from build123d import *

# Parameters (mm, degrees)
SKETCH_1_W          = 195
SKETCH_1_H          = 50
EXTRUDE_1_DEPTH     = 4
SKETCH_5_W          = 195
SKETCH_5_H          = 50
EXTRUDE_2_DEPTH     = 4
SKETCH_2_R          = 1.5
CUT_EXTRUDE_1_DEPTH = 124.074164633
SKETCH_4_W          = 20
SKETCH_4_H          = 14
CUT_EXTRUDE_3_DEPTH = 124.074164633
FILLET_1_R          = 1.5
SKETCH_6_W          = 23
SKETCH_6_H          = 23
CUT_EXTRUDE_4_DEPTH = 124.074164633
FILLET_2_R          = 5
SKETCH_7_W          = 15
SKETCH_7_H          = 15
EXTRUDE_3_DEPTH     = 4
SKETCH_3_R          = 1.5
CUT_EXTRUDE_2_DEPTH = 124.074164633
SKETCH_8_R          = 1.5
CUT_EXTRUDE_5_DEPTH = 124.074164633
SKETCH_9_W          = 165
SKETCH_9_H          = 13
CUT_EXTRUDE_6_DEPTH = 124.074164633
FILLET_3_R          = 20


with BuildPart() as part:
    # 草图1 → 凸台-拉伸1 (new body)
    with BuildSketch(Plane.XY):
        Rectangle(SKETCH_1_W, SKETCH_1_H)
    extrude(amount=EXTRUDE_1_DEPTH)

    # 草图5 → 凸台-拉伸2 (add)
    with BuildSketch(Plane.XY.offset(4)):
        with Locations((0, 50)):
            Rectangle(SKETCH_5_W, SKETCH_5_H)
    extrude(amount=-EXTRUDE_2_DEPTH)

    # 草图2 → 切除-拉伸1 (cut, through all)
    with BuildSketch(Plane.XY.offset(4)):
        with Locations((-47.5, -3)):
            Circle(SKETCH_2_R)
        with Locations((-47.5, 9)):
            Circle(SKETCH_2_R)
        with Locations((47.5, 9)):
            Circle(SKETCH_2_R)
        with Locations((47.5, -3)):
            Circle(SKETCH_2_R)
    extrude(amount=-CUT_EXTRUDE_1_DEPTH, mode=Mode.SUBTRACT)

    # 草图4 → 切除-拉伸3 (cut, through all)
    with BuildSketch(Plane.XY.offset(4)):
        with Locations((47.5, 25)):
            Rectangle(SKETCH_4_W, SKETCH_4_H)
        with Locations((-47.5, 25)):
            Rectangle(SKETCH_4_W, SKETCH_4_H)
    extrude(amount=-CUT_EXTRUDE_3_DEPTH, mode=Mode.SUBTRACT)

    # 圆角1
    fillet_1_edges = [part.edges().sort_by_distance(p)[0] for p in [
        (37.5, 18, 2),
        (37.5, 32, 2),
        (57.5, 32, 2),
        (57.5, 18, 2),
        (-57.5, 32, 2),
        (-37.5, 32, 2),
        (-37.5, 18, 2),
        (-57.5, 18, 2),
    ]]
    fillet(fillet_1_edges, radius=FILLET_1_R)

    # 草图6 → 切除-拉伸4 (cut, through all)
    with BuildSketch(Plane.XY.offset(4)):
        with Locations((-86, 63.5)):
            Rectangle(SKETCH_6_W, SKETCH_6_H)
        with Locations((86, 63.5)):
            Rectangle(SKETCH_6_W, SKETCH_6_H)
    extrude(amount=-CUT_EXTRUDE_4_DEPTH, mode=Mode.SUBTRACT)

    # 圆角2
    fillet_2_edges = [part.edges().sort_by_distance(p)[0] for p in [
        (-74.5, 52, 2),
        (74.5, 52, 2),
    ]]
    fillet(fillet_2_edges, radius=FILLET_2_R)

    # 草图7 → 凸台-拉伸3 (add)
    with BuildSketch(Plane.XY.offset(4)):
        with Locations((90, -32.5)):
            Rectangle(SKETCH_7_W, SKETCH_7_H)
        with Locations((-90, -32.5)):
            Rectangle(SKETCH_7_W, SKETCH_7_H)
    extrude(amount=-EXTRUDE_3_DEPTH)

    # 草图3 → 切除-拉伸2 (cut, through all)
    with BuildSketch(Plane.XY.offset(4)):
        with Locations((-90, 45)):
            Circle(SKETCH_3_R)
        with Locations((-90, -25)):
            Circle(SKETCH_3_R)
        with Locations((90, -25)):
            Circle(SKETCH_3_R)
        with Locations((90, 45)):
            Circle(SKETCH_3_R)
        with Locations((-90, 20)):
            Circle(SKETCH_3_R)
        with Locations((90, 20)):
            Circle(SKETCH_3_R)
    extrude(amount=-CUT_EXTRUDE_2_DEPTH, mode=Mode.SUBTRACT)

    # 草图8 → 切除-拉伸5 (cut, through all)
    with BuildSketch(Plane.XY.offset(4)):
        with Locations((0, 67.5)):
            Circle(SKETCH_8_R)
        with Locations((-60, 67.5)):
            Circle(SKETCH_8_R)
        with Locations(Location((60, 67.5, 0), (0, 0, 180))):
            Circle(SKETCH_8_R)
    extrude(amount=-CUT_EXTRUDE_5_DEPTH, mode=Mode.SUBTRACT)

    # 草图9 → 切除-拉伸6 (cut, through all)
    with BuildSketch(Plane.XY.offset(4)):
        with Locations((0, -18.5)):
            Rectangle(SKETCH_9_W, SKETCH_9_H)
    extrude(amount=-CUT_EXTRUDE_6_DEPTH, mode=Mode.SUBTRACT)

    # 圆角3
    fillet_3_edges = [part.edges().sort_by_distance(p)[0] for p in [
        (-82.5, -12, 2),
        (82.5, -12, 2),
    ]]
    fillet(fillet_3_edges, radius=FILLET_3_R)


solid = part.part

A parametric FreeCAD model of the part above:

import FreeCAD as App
import Part
import Sketcher
from FreeCAD import Vector


def edges_at(feature, points):
    """Names of the edges that pass closest to the given points."""
    edges = feature.Shape.Edges
    near = lambda p: min(range(len(edges)), key=lambda i: edges[i].distToShape(Part.Vertex(*p))[0])
    return sorted({f"Edge{near(p) + 1}" for p in points})

doc = App.newDocument("Part")
body = doc.addObject("PartDesign::Body", "Body")

# Sketch on XY plane
sketch1 = body.newObject("Sketcher::SketchObject", "Sketch")
sketch1.AttachmentSupport = (doc.getObject("XY_Plane"), [""])
sketch1.MapMode = "FlatFace"
sketch1.addGeometry(Part.LineSegment(Vector(-98, 25, 0), Vector(-98, -25, 0)), False)
sketch1.addGeometry(Part.LineSegment(Vector(-98, -25, 0), Vector(98, -25, 0)), False)
sketch1.addGeometry(Part.LineSegment(Vector(98, -25, 0), Vector(98, 25, 0)), False)
sketch1.addGeometry(Part.LineSegment(Vector(98, 25, 0), Vector(-98, 25, 0)), False)
sketch1.addConstraint(Sketcher.Constraint("Coincident", 0, 2, 1, 1))
sketch1.addConstraint(Sketcher.Constraint("Coincident", 1, 2, 2, 1))
sketch1.addConstraint(Sketcher.Constraint("Coincident", 2, 2, 3, 1))
sketch1.addConstraint(Sketcher.Constraint("Coincident", 3, 2, 0, 1))
sketch1.addConstraint(Sketcher.Constraint("Vertical", 0))
sketch1.addConstraint(Sketcher.Constraint("Horizontal", 1))
sketch1.addConstraint(Sketcher.Constraint("Vertical", 2))
sketch1.addConstraint(Sketcher.Constraint("Horizontal", 3))
sketch1.addConstraint(Sketcher.Constraint("Symmetric", 0, 2, 2, 2, -1, 1))
sketch1.addConstraint(Sketcher.Constraint("DistanceX", 1, 1, 1, 2, 195.0))
sketch1.addConstraint(Sketcher.Constraint("DistanceY", 0, 2, 0, 1, 50.0))
pad1 = body.newObject("PartDesign::Pad", "Pad")
pad1.Profile = sketch1
pad1.Length = 4

# Sketch on XY plane
sketch2 = body.newObject("Sketcher::SketchObject", "Sketch001")
sketch2.AttachmentSupport = (doc.getObject("XY_Plane"), [""])
sketch2.MapMode = "FlatFace"
sketch2.AttachmentOffset = App.Placement(Vector(0, 0, 4), App.Rotation())
sketch2.addGeometry(Part.LineSegment(Vector(-98, 75, 0), Vector(-98, 25, 0)), False)
sketch2.addGeometry(Part.LineSegment(Vector(-98, 25, 0), Vector(98, 25, 0)), False)
sketch2.addGeometry(Part.LineSegment(Vector(98, 25, 0), Vector(98, 75, 0)), False)
sketch2.addGeometry(Part.LineSegment(Vector(98, 75, 0), Vector(-98, 75, 0)), False)
sketch2.addConstraint(Sketcher.Constraint("Coincident", 0, 2, 1, 1))
sketch2.addConstraint(Sketcher.Constraint("Coincident", 1, 2, 2, 1))
sketch2.addConstraint(Sketcher.Constraint("Coincident", 2, 2, 3, 1))
sketch2.addConstraint(Sketcher.Constraint("Coincident", 3, 2, 0, 1))
sketch2.addConstraint(Sketcher.Constraint("Vertical", 0))
sketch2.addConstraint(Sketcher.Constraint("Horizontal", 1))
sketch2.addConstraint(Sketcher.Constraint("Vertical", 2))
sketch2.addConstraint(Sketcher.Constraint("Horizontal", 3))
sketch2.addConstraint(Sketcher.Constraint("DistanceX", 1, 1, 1, 2, 195.0))
sketch2.addConstraint(Sketcher.Constraint("DistanceY", 0, 2, 0, 1, 50.0))
sketch2.addConstraint(Sketcher.Constraint("DistanceY", -1, 1, 0, 2, 25.0))
sketch2.addConstraint(Sketcher.Constraint("DistanceX", 0, 2, -1, 1, 97.5))
pad2 = body.newObject("PartDesign::Pad", "Pad001")
pad2.Profile = sketch2
pad2.Length = 4
pad2.Reversed = True

# Sketch on XY plane
sketch3 = body.newObject("Sketcher::SketchObject", "Sketch002")
sketch3.AttachmentSupport = (doc.getObject("XY_Plane"), [""])
sketch3.MapMode = "FlatFace"
sketch3.AttachmentOffset = App.Placement(Vector(0, 0, 4), App.Rotation())
sketch3.addGeometry(Part.Circle(Vector(-47.5, -3, 0), Vector(0, 0, 1), 1.5), False)
sketch3.addGeometry(Part.Circle(Vector(-47.5, 9, 0), Vector(0, 0, 1), 1.5), False)
sketch3.addGeometry(Part.Circle(Vector(47.5, 9, 0), Vector(0, 0, 1), 1.5), False)
sketch3.addGeometry(Part.Circle(Vector(47.5, -3, 0), Vector(0, 0, 1), 1.5), False)
sketch3.addConstraint(Sketcher.Constraint("Equal", 0, 1))
sketch3.addConstraint(Sketcher.Constraint("Equal", 1, 2))
sketch3.addConstraint(Sketcher.Constraint("Equal", 2, 3))
sketch3.addConstraint(Sketcher.Constraint("Symmetric", 1, 3, 2, 3, -2))
sketch3.addConstraint(Sketcher.Constraint("Symmetric", 0, 3, 3, 3, -2))
sketch3.addConstraint(Sketcher.Constraint("Vertical", 0, 3, 1, 3))
sketch3.addConstraint(Sketcher.Constraint("Diameter", 0, 3.0))
sketch3.addConstraint(Sketcher.Constraint("DistanceY", 0, 3, -1, 1, 3.0))
sketch3.addConstraint(Sketcher.Constraint("DistanceY", -1, 1, 1, 3, 9.0))
sketch3.addConstraint(Sketcher.Constraint("DistanceX", 1, 3, 2, 3, 95.0))
pocket1 = body.newObject("PartDesign::Pocket", "Pocket")
pocket1.Profile = sketch3
pocket1.Type = "ThroughAll"

# Sketch on XY plane
sketch4 = body.newObject("Sketcher::SketchObject", "Sketch003")
sketch4.AttachmentSupport = (doc.getObject("XY_Plane"), [""])
sketch4.MapMode = "FlatFace"
sketch4.AttachmentOffset = App.Placement(Vector(0, 0, 4), App.Rotation())
sketch4.addGeometry(Part.LineSegment(Vector(38, 32, 0), Vector(38, 18, 0)), False)
sketch4.addGeometry(Part.LineSegment(Vector(38, 18, 0), Vector(58, 18, 0)), False)
sketch4.addGeometry(Part.LineSegment(Vector(58, 18, 0), Vector(58, 32, 0)), False)
sketch4.addGeometry(Part.LineSegment(Vector(58, 32, 0), Vector(38, 32, 0)), False)
sketch4.addGeometry(Part.LineSegment(Vector(-58, 32, 0), Vector(-58, 18, 0)), False)
sketch4.addGeometry(Part.LineSegment(Vector(-58, 18, 0), Vector(-38, 18, 0)), False)
sketch4.addGeometry(Part.LineSegment(Vector(-38, 18, 0), Vector(-38, 32, 0)), False)
sketch4.addGeometry(Part.LineSegment(Vector(-38, 32, 0), Vector(-58, 32, 0)), False)
sketch4.addConstraint(Sketcher.Constraint("Coincident", 0, 2, 1, 1))
sketch4.addConstraint(Sketcher.Constraint("Coincident", 1, 2, 2, 1))
sketch4.addConstraint(Sketcher.Constraint("Coincident", 2, 2, 3, 1))
sketch4.addConstraint(Sketcher.Constraint("Coincident", 3, 2, 0, 1))
sketch4.addConstraint(Sketcher.Constraint("Coincident", 4, 2, 5, 1))
sketch4.addConstraint(Sketcher.Constraint("Coincident", 5, 2, 6, 1))
sketch4.addConstraint(Sketcher.Constraint("Coincident", 6, 2, 7, 1))
sketch4.addConstraint(Sketcher.Constraint("Coincident", 7, 2, 4, 1))
sketch4.addConstraint(Sketcher.Constraint("Vertical", 0))
sketch4.addConstraint(Sketcher.Constraint("Horizontal", 1))
sketch4.addConstraint(Sketcher.Constraint("Vertical", 2))
sketch4.addConstraint(Sketcher.Constraint("Horizontal", 3))
sketch4.addConstraint(Sketcher.Constraint("Vertical", 4))
sketch4.addConstraint(Sketcher.Constraint("Horizontal", 5))
sketch4.addConstraint(Sketcher.Constraint("Vertical", 6))
sketch4.addConstraint(Sketcher.Constraint("Horizontal", 7))
sketch4.addConstraint(Sketcher.Constraint("Symmetric", 1, 2, 4, 2, -2))
sketch4.addConstraint(Sketcher.Constraint("Symmetric", 3, 2, 6, 2, -2))
sketch4.addConstraint(Sketcher.Constraint("DistanceX", 1, 1, 1, 2, 20.0))
sketch4.addConstraint(Sketcher.Constraint("DistanceY", 0, 2, 0, 1, 14.0))
sketch4.addConstraint(Sketcher.Constraint("DistanceY", -1, 1, 0, 2, 18.0))
sketch4.addConstraint(Sketcher.Constraint("DistanceX", 4, 2, 0, 2, 95.0))
pocket2 = body.newObject("PartDesign::Pocket", "Pocket001")
pocket2.Profile = sketch4
pocket2.Type = "ThroughAll"
doc.recompute()

fillet = body.newObject("PartDesign::Fillet", "Fillet")
fillet.Base = (pocket2, edges_at(pocket2, [
    (37.5, 18, 2),
    (37.5, 32, 2),
    (57.5, 32, 2),
    (57.5, 18, 2),
    (-57.5, 32, 2),
    (-37.5, 32, 2),
    (-37.5, 18, 2),
    (-57.5, 18, 2),
]))
fillet.Radius = 1.5

# Sketch on XY plane
sketch5 = body.newObject("Sketcher::SketchObject", "Sketch004")
sketch5.AttachmentSupport = (doc.getObject("XY_Plane"), [""])
sketch5.MapMode = "FlatFace"
sketch5.AttachmentOffset = App.Placement(Vector(0, 0, 4), App.Rotation())
sketch5.addGeometry(Part.LineSegment(Vector(-98, 75, 0), Vector(-98, 52, 0)), False)
sketch5.addGeometry(Part.LineSegment(Vector(-98, 52, 0), Vector(-74, 52, 0)), False)
sketch5.addGeometry(Part.LineSegment(Vector(-74, 52, 0), Vector(-74, 75, 0)), False)
sketch5.addGeometry(Part.LineSegment(Vector(-74, 75, 0), Vector(-98, 75, 0)), False)
sketch5.addGeometry(Part.LineSegment(Vector(74, 75, 0), Vector(74, 52, 0)), False)
sketch5.addGeometry(Part.LineSegment(Vector(74, 52, 0), Vector(98, 52, 0)), False)
sketch5.addGeometry(Part.LineSegment(Vector(98, 52, 0), Vector(98, 75, 0)), False)
sketch5.addGeometry(Part.LineSegment(Vector(98, 75, 0), Vector(74, 75, 0)), False)
sketch5.addConstraint(Sketcher.Constraint("Coincident", 0, 2, 1, 1))
sketch5.addConstraint(Sketcher.Constraint("Coincident", 1, 2, 2, 1))
sketch5.addConstraint(Sketcher.Constraint("Coincident", 2, 2, 3, 1))
sketch5.addConstraint(Sketcher.Constraint("Coincident", 3, 2, 0, 1))
sketch5.addConstraint(Sketcher.Constraint("Coincident", 4, 2, 5, 1))
sketch5.addConstraint(Sketcher.Constraint("Coincident", 5, 2, 6, 1))
sketch5.addConstraint(Sketcher.Constraint("Coincident", 6, 2, 7, 1))
sketch5.addConstraint(Sketcher.Constraint("Coincident", 7, 2, 4, 1))
sketch5.addConstraint(Sketcher.Constraint("Vertical", 0))
sketch5.addConstraint(Sketcher.Constraint("Horizontal", 1))
sketch5.addConstraint(Sketcher.Constraint("Vertical", 2))
sketch5.addConstraint(Sketcher.Constraint("Horizontal", 3))
sketch5.addConstraint(Sketcher.Constraint("Vertical", 4))
sketch5.addConstraint(Sketcher.Constraint("Horizontal", 5))
sketch5.addConstraint(Sketcher.Constraint("Vertical", 6))
sketch5.addConstraint(Sketcher.Constraint("Horizontal", 7))
sketch5.addConstraint(Sketcher.Constraint("Symmetric", 1, 2, 4, 2, -2))
sketch5.addConstraint(Sketcher.Constraint("Symmetric", 3, 2, 6, 2, -2))
sketch5.addConstraint(Sketcher.Constraint("Equal", 7, 0))
sketch5.addConstraint(Sketcher.Constraint("DistanceX", 1, 1, 1, 2, 23.0))
sketch5.addConstraint(Sketcher.Constraint("DistanceY", -1, 1, 0, 2, 52.0))
sketch5.addConstraint(Sketcher.Constraint("DistanceX", 1, 2, 4, 2, 149.0))
pocket3 = body.newObject("PartDesign::Pocket", "Pocket002")
pocket3.Profile = sketch5
pocket3.Type = "ThroughAll"
doc.recompute()

fillet2 = body.newObject("PartDesign::Fillet", "Fillet001")
fillet2.Base = (pocket3, edges_at(pocket3, [(-74.5, 52, 2), (74.5, 52, 2)]))
fillet2.Radius = 5

# Sketch on XY plane
sketch6 = body.newObject("Sketcher::SketchObject", "Sketch005")
sketch6.AttachmentSupport = (doc.getObject("XY_Plane"), [""])
sketch6.MapMode = "FlatFace"
sketch6.AttachmentOffset = App.Placement(Vector(0, 0, 4), App.Rotation())
sketch6.addGeometry(Part.LineSegment(Vector(82, -25, 0), Vector(82, -40, 0)), False)
sketch6.addGeometry(Part.LineSegment(Vector(82, -40, 0), Vector(98, -40, 0)), False)
sketch6.addGeometry(Part.LineSegment(Vector(98, -40, 0), Vector(98, -25, 0)), False)
sketch6.addGeometry(Part.LineSegment(Vector(98, -25, 0), Vector(82, -25, 0)), False)
sketch6.addGeometry(Part.LineSegment(Vector(-98, -25, 0), Vector(-98, -40, 0)), False)
sketch6.addGeometry(Part.LineSegment(Vector(-98, -40, 0), Vector(-82, -40, 0)), False)
sketch6.addGeometry(Part.LineSegment(Vector(-82, -40, 0), Vector(-82, -25, 0)), False)
sketch6.addGeometry(Part.LineSegment(Vector(-82, -25, 0), Vector(-98, -25, 0)), False)
sketch6.addConstraint(Sketcher.Constraint("Coincident", 0, 2, 1, 1))
sketch6.addConstraint(Sketcher.Constraint("Coincident", 1, 2, 2, 1))
sketch6.addConstraint(Sketcher.Constraint("Coincident", 2, 2, 3, 1))
sketch6.addConstraint(Sketcher.Constraint("Coincident", 3, 2, 0, 1))
sketch6.addConstraint(Sketcher.Constraint("Coincident", 4, 2, 5, 1))
sketch6.addConstraint(Sketcher.Constraint("Coincident", 5, 2, 6, 1))
sketch6.addConstraint(Sketcher.Constraint("Coincident", 6, 2, 7, 1))
sketch6.addConstraint(Sketcher.Constraint("Coincident", 7, 2, 4, 1))
sketch6.addConstraint(Sketcher.Constraint("Vertical", 0))
sketch6.addConstraint(Sketcher.Constraint("Horizontal", 1))
sketch6.addConstraint(Sketcher.Constraint("Vertical", 2))
sketch6.addConstraint(Sketcher.Constraint("Horizontal", 3))
sketch6.addConstraint(Sketcher.Constraint("Vertical", 4))
sketch6.addConstraint(Sketcher.Constraint("Horizontal", 5))
sketch6.addConstraint(Sketcher.Constraint("Vertical", 6))
sketch6.addConstraint(Sketcher.Constraint("Horizontal", 7))
sketch6.addConstraint(Sketcher.Constraint("Symmetric", 1, 2, 4, 2, -2))
sketch6.addConstraint(Sketcher.Constraint("Symmetric", 3, 2, 6, 2, -2))
sketch6.addConstraint(Sketcher.Constraint("Equal", 7, 0))
sketch6.addConstraint(Sketcher.Constraint("DistanceX", 1, 1, 1, 2, 15.0))
sketch6.addConstraint(Sketcher.Constraint("DistanceY", 0, 2, -1, 1, 40.0))
sketch6.addConstraint(Sketcher.Constraint("DistanceX", 4, 2, 0, 2, 180.0))
pad3 = body.newObject("PartDesign::Pad", "Pad002")
pad3.Profile = sketch6
pad3.Length = 4
pad3.Reversed = True

# Sketch on XY plane
sketch7 = body.newObject("Sketcher::SketchObject", "Sketch006")
sketch7.AttachmentSupport = (doc.getObject("XY_Plane"), [""])
sketch7.MapMode = "FlatFace"
sketch7.AttachmentOffset = App.Placement(Vector(0, 0, 4), App.Rotation())
sketch7.addGeometry(Part.Circle(Vector(-90, 45, 0), Vector(0, 0, 1), 1.5), False)
sketch7.addGeometry(Part.Circle(Vector(-90, -25, 0), Vector(0, 0, 1), 1.5), False)
sketch7.addGeometry(Part.Circle(Vector(90, -25, 0), Vector(0, 0, 1), 1.5), False)
sketch7.addGeometry(Part.Circle(Vector(90, 45, 0), Vector(0, 0, 1), 1.5), False)
sketch7.addGeometry(Part.Circle(Vector(-90, 20, 0), Vector(0, 0, 1), 1.5), False)
sketch7.addGeometry(Part.Circle(Vector(90, 20, 0), Vector(0, 0, 1), 1.5), False)
sketch7.addConstraint(Sketcher.Constraint("Equal", 0, 1))
sketch7.addConstraint(Sketcher.Constraint("Equal", 1, 2))
sketch7.addConstraint(Sketcher.Constraint("Equal", 2, 3))
sketch7.addConstraint(Sketcher.Constraint("Equal", 3, 4))
sketch7.addConstraint(Sketcher.Constraint("Equal", 4, 5))
sketch7.addConstraint(Sketcher.Constraint("Symmetric", 1, 3, 2, 3, -2))
sketch7.addConstraint(Sketcher.Constraint("Symmetric", 0, 3, 3, 3, -2))
sketch7.addConstraint(Sketcher.Constraint("Symmetric", 4, 3, 5, 3, -2))
sketch7.addConstraint(Sketcher.Constraint("Vertical", 0, 3, 1, 3))
sketch7.addConstraint(Sketcher.Constraint("Vertical", 1, 3, 4, 3))
sketch7.addConstraint(Sketcher.Constraint("Diameter", 0, 3.0))
sketch7.addConstraint(Sketcher.Constraint("DistanceX", 0, 3, -1, 1, 90.0))
sketch7.addConstraint(Sketcher.Constraint("DistanceY", -1, 1, 0, 3, 45.0))
sketch7.addConstraint(Sketcher.Constraint("DistanceY", 1, 3, -1, 1, 25.0))
sketch7.addConstraint(Sketcher.Constraint("DistanceY", -1, 1, 4, 3, 20.0))
pocket4 = body.newObject("PartDesign::Pocket", "Pocket003")
pocket4.Profile = sketch7
pocket4.Type = "ThroughAll"

# Sketch on XY plane
sketch8 = body.newObject("Sketcher::SketchObject", "Sketch007")
sketch8.AttachmentSupport = (doc.getObject("XY_Plane"), [""])
sketch8.MapMode = "FlatFace"
sketch8.AttachmentOffset = App.Placement(Vector(0, 0, 4), App.Rotation())
sketch8.addGeometry(Part.Circle(Vector(0, 67.5, 0), Vector(0, 0, 1), 1.5), False)
sketch8.addGeometry(Part.Circle(Vector(-60, 67.5, 0), Vector(0, 0, 1), 1.5), False)
sketch8.addGeometry(Part.Circle(Vector(60, 67.5, 0), Vector(0, 0, 1), 1.5), False)
sketch8.addConstraint(Sketcher.Constraint("Equal", 0, 1))
sketch8.addConstraint(Sketcher.Constraint("Equal", 1, 2))
sketch8.addConstraint(Sketcher.Constraint("Symmetric", 1, 3, 2, 3, -2))
sketch8.addConstraint(Sketcher.Constraint("PointOnObject", 0, 3, -2))
sketch8.addConstraint(Sketcher.Constraint("Horizontal", 0, 3, 1, 3))
sketch8.addConstraint(Sketcher.Constraint("Diameter", 0, 3.0))
sketch8.addConstraint(Sketcher.Constraint("DistanceX", 1, 3, -1, 1, 60.0))
sketch8.addConstraint(Sketcher.Constraint("DistanceY", -1, 1, 0, 3, 67.5))
pocket5 = body.newObject("PartDesign::Pocket", "Pocket004")
pocket5.Profile = sketch8
pocket5.Type = "ThroughAll"

# Sketch on XY plane
sketch9 = body.newObject("Sketcher::SketchObject", "Sketch008")
sketch9.AttachmentSupport = (doc.getObject("XY_Plane"), [""])
sketch9.MapMode = "FlatFace"
sketch9.AttachmentOffset = App.Placement(Vector(0, 0, 4), App.Rotation())
sketch9.addGeometry(Part.LineSegment(Vector(-82, -12, 0), Vector(-82, -25, 0)), False)
sketch9.addGeometry(Part.LineSegment(Vector(-82, -25, 0), Vector(82, -25, 0)), False)
sketch9.addGeometry(Part.LineSegment(Vector(82, -25, 0), Vector(82, -12, 0)), False)
sketch9.addGeometry(Part.LineSegment(Vector(82, -12, 0), Vector(-82, -12, 0)), False)
sketch9.addConstraint(Sketcher.Constraint("Coincident", 0, 2, 1, 1))
sketch9.addConstraint(Sketcher.Constraint("Coincident", 1, 2, 2, 1))
sketch9.addConstraint(Sketcher.Constraint("Coincident", 2, 2, 3, 1))
sketch9.addConstraint(Sketcher.Constraint("Coincident", 3, 2, 0, 1))
sketch9.addConstraint(Sketcher.Constraint("Vertical", 0))
sketch9.addConstraint(Sketcher.Constraint("Horizontal", 1))
sketch9.addConstraint(Sketcher.Constraint("Vertical", 2))
sketch9.addConstraint(Sketcher.Constraint("Horizontal", 3))
sketch9.addConstraint(Sketcher.Constraint("DistanceX", 1, 1, 1, 2, 165.0))
sketch9.addConstraint(Sketcher.Constraint("DistanceY", 0, 2, 0, 1, 13.0))
sketch9.addConstraint(Sketcher.Constraint("DistanceY", 0, 2, -1, 1, 25.0))
sketch9.addConstraint(Sketcher.Constraint("DistanceX", 0, 2, -1, 1, 82.5))
pocket6 = body.newObject("PartDesign::Pocket", "Pocket005")
pocket6.Profile = sketch9
pocket6.Type = "ThroughAll"
doc.recompute()

fillet3 = body.newObject("PartDesign::Fillet", "Fillet002")
fillet3.Base = (pocket6, edges_at(pocket6, [(-82.5, -12, 2), (82.5, -12, 2)]))
fillet3.Radius = 20

doc.recompute()
